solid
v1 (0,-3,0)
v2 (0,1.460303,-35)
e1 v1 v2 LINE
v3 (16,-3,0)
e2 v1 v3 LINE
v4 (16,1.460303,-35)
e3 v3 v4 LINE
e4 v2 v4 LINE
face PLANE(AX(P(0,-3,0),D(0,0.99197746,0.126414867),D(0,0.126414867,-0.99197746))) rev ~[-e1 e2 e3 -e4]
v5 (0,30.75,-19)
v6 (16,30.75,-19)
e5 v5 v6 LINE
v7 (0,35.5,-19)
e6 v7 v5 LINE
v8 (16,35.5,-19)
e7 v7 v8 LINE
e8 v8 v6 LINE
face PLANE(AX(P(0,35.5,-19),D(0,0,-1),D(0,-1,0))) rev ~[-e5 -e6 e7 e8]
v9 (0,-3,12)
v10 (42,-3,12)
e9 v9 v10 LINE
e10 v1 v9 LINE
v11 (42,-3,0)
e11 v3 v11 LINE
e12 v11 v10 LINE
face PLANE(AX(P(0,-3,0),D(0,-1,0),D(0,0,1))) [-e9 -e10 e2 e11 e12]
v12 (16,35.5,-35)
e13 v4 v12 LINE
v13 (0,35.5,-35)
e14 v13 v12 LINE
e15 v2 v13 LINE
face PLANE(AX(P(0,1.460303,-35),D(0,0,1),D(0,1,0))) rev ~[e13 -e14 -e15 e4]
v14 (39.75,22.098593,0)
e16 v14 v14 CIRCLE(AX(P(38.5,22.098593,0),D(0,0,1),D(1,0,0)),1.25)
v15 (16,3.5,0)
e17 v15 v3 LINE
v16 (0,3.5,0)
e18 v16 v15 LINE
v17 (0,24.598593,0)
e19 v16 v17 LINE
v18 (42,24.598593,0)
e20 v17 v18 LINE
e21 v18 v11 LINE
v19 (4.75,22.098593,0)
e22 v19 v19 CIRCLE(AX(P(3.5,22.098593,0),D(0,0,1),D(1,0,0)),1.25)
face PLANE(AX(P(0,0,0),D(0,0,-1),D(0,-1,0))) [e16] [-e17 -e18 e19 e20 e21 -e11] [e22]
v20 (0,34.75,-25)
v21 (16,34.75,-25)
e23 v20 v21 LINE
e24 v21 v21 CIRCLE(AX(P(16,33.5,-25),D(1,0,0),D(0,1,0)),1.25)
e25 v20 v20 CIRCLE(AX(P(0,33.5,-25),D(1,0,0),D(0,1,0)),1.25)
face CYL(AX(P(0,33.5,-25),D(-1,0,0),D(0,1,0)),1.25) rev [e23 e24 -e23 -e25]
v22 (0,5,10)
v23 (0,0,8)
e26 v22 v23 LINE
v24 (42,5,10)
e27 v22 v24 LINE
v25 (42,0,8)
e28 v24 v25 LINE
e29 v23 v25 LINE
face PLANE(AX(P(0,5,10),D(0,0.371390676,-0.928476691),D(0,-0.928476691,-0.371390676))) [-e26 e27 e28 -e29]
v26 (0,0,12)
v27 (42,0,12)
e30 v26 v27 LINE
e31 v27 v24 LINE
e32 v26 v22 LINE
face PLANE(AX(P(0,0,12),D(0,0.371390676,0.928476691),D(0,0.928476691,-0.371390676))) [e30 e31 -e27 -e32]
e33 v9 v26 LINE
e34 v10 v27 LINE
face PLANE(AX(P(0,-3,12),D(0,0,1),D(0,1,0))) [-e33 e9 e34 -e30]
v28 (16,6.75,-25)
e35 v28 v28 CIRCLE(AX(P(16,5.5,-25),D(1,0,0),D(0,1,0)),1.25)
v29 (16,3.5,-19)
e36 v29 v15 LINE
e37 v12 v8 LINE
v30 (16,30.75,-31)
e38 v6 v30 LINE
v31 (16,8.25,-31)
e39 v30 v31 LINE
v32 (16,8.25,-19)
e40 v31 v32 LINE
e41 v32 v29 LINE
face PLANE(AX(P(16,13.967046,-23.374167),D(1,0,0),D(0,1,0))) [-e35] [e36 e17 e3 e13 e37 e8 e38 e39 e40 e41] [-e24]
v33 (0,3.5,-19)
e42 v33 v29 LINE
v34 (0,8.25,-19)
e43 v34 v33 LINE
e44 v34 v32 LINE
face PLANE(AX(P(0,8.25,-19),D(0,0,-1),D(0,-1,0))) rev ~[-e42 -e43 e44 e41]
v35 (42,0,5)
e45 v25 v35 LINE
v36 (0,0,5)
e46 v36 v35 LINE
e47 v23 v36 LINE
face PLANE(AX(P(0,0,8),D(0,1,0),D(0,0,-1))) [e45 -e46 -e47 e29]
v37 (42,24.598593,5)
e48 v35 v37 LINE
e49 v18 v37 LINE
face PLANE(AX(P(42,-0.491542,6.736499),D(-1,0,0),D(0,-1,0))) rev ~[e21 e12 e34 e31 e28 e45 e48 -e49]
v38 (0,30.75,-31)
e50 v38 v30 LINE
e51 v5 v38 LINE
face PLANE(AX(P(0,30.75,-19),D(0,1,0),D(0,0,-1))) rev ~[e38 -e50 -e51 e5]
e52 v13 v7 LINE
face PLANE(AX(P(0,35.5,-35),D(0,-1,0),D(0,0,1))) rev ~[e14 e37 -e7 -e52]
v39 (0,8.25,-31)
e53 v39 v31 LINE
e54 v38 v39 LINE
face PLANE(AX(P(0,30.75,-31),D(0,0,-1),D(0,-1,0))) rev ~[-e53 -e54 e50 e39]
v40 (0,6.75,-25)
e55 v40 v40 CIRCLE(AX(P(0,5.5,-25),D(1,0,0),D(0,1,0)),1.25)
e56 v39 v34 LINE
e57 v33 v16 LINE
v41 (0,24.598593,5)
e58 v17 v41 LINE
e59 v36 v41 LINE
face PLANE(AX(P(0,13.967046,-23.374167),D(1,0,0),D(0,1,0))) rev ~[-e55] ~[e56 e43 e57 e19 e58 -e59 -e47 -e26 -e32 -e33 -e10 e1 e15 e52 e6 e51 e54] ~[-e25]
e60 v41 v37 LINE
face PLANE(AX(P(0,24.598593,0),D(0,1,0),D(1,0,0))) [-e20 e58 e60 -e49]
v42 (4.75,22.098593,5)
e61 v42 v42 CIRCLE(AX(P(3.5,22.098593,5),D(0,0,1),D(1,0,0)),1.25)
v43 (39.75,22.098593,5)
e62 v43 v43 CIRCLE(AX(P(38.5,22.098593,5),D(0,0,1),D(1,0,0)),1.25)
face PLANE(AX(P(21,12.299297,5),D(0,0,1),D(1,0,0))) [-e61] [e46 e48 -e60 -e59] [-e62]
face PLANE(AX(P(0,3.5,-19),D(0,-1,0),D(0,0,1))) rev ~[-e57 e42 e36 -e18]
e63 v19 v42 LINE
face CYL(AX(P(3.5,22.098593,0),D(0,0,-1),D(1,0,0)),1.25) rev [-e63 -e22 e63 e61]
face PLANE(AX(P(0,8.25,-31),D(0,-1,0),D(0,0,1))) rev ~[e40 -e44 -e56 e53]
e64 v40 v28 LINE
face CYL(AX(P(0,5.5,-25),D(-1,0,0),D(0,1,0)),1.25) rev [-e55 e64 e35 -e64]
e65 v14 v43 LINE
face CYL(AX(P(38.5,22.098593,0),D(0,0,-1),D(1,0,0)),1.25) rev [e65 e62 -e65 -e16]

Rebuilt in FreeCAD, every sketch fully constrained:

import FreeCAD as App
import Part
import Sketcher


def add_polygon(sketch, points):
    """Adds a closed chain of lines whose ends are joined by coincident constraints."""
    first, n = sketch.GeometryCount, len(points)
    for a, b in zip(points, points[1:] + points[:1]):
        sketch.addGeometry(Part.LineSegment(App.Vector(*a, 0), App.Vector(*b, 0)), False)
    for i in range(n):
        sketch.addConstraint(Sketcher.Constraint("Coincident", first + i, 2, first + (i + 1) % n, 1))

doc = App.newDocument("Part")
params = doc.addObject("Spreadsheet::Sheet", "Params")
for row, (alias, value) in enumerate([
    ("sketch1_diameter", "2.5 mm"),
    ("sketch1_width", "42 mm"),
    ("pad1_length", "5 mm"),
    ("sketch2_width", "3 mm"),
    ("sketch2_height", "12 mm"),
    ("sketch2_height2", "8 mm"),
    ("pad2_length", "42 mm"),
    ("sketch3_diameter", "2.5 mm"),
    ("sketch3_height", "19 mm"),
    ("sketch3_height2", "16 mm"),
    ("sketch3_height3", "12 mm"),
    ("sketch3_width", "6.5 mm"),
    ("pad3_length", "16 mm"),
], start=1):
    params.set(f"A{row}", alias)
    params.set(f"B{row}", "=" + value)
    params.setAlias(f"B{row}", alias)

body = doc.addObject("PartDesign::Body", "Body")

sketch1 = body.newObject("Sketcher::SketchObject", "Sketch")
sketch1.AttachmentSupport = (doc.getObject("XY_Plane"), [""])
sketch1.MapMode = "FlatFace"
add_polygon(sketch1, [(0, 24.6), (0, 0), (42, 0), (42, 24.6)])
sketch1.addGeometry(Part.Circle(App.Vector(3.5, 22.1, 0), App.Vector(0, 0, 1), 1.2), False)
sketch1.addGeometry(Part.Circle(App.Vector(38.5, 22.1, 0), App.Vector(0, 0, 1), 1.2), False)
sketch1.addConstraint(Sketcher.Constraint("Vertical", 0))
sketch1.addConstraint(Sketcher.Constraint("Horizontal", 1))
sketch1.addConstraint(Sketcher.Constraint("Vertical", 2))
sketch1.addConstraint(Sketcher.Constraint("Horizontal", 3))
sketch1.addConstraint(Sketcher.Constraint("Coincident", 0, 2, -1, 1))
sketch1.addConstraint(Sketcher.Constraint("Equal", 4, 5))
sketch1.addConstraint(Sketcher.Constraint("Horizontal", 4, 3, 5, 3))
sketch1.addConstraint(Sketcher.Constraint("Diameter", 4, 2.5))
sketch1.addConstraint(Sketcher.Constraint("DistanceX", 1, 1, 1, 2, 42.0))
sketch1.addConstraint(Sketcher.Constraint("DistanceX", 4, 3, 5, 3, 35.0))
sketch1.addConstraint(Sketcher.Constraint("DistanceX", -1, 1, 4, 3, 3.5))
sketch1.addConstraint(Sketcher.Constraint("DistanceY", 5, 3, 2, 2, 2.5))
sketch1.addConstraint(Sketcher.Constraint("DistanceY", 0, 2, 0, 1, 24.598593))
sketch1.setExpression("Constraints[11]", "Params.sketch1_diameter")
sketch1.setExpression("Constraints[12]", "Params.sketch1_width")
pad1 = body.newObject("PartDesign::Pad", "Pad")
pad1.Profile = sketch1
pad1.setExpression("Length", "Params.pad1_length")

sketch2 = body.newObject("Sketcher::SketchObject", "Sketch001")
sketch2.AttachmentSupport = (doc.getObject("YZ_Plane"), [""])
sketch2.MapMode = "FlatFace"
add_polygon(sketch2, [(0, 0), (-3, 0), (-3, 12), (0, 12), (5, 10), (0, 8)])
sketch2.addConstraint(Sketcher.Constraint("Horizontal", 0))
sketch2.addConstraint(Sketcher.Constraint("Vertical", 1))
sketch2.addConstraint(Sketcher.Constraint("Horizontal", 2))
sketch2.addConstraint(Sketcher.Constraint("Vertical", 5))
sketch2.addConstraint(Sketcher.Constraint("Coincident", 5, 2, -1, 1))
sketch2.addConstraint(Sketcher.Constraint("PointOnObject", 2, 2, -2))
sketch2.addConstraint(Sketcher.Constraint("Equal", 3, 4))
sketch2.addConstraint(Sketcher.Constraint("DistanceX", 0, 2, 0, 1, 3.0))
sketch2.addConstraint(Sketcher.Constraint("DistanceY", 1, 1, 1, 2, 12.0))
sketch2.addConstraint(Sketcher.Constraint("DistanceY", 5, 2, 5, 1, 8.0))
sketch2.addConstraint(Sketcher.Constraint("DistanceX", -1, 1, 3, 2, 5.0))
sketch2.setExpression("Constraints[13]", "Params.sketch2_width")
sketch2.setExpression("Constraints[14]", "Params.sketch2_height")
sketch2.setExpression("Constraints[15]", "Params.sketch2_height2")
pad2 = body.newObject("PartDesign::Pad", "Pad001")
pad2.Profile = sketch2
pad2.setExpression("Length", "Params.pad2_length")

sketch3 = body.newObject("Sketcher::SketchObject", "Sketch002")
sketch3.AttachmentSupport = (doc.getObject("YZ_Plane"), [""])
sketch3.MapMode = "FlatFace"
add_polygon(sketch3, [(3.5, -19), (3.5, 0), (-3, 0), (1.5, -35), (35.5, -35), (35.5, -19), (30.8, -19), (30.8, -31), (8.2, -31), (8.2, -19)])
sketch3.addGeometry(Part.Circle(App.Vector(5.5, -25, 0), App.Vector(0, 0, 1), 1.2), False)
sketch3.addGeometry(Part.Circle(App.Vector(33.5, -25, 0), App.Vector(0, 0, 1), 1.2), False)
sketch3.addConstraint(Sketcher.Constraint("Vertical", 0))
sketch3.addConstraint(Sketcher.Constraint("Horizontal", 1))
sketch3.addConstraint(Sketcher.Constraint("Horizontal", 3))
sketch3.addConstraint(Sketcher.Constraint("Vertical", 4))
sketch3.addConstraint(Sketcher.Constraint("Horizontal", 5))
sketch3.addConstraint(Sketcher.Constraint("Vertical", 6))
sketch3.addConstraint(Sketcher.Constraint("Horizontal", 7))
sketch3.addConstraint(Sketcher.Constraint("Vertical", 8))
sketch3.addConstraint(Sketcher.Constraint("Horizontal", 9))
sketch3.addConstraint(Sketcher.Constraint("Equal", 10, 11))
sketch3.addConstraint(Sketcher.Constraint("PointOnObject", 0, 2, -1))
sketch3.addConstraint(Sketcher.Constraint("Horizontal", 10, 3, 11, 3))
sketch3.addConstraint(Sketcher.Constraint("Horizontal", 5, 2, 8, 2))
sketch3.addConstraint(Sketcher.Constraint("Equal", 5, 9))
sketch3.addConstraint(Sketcher.Constraint("Diameter", 10, 2.5))
sketch3.addConstraint(Sketcher.Constraint("DistanceY", 0, 1, 0, 2, 19.0))
sketch3.addConstraint(Sketcher.Constraint("DistanceY", 4, 1, 4, 2, 16.0))
sketch3.addConstraint(Sketcher.Constraint("DistanceY", 6, 2, 6, 1, 12.0))
sketch3.addConstraint(Sketcher.Constraint("DistanceX", 1, 2, 1, 1, 6.5))
sketch3.addConstraint(Sketcher.Constraint("DistanceX", 7, 2, 7, 1, 22.5))
sketch3.addConstraint(Sketcher.Constraint("DistanceY", 10, 3, -1, 1, 25.0))
sketch3.addConstraint(Sketcher.Constraint("DistanceX", 1, 2, -1, 1, 3.0))
sketch3.addConstraint(Sketcher.Constraint("DistanceX", 10, 3, 11, 3, 28.0))
sketch3.addConstraint(Sketcher.Constraint("DistanceX", 0, 2, 10, 3, 2.0))
sketch3.addConstraint(Sketcher.Constraint("DistanceX", 11, 3, 3, 2, 2.0))
sketch3.addConstraint(Sketcher.Constraint("Distance", 2, 35.28306))
sketch3.setExpression("Constraints[24]", "Params.sketch3_diameter")
sketch3.setExpression("Constraints[25]", "Params.sketch3_height")
sketch3.setExpression("Constraints[26]", "Params.sketch3_height2")
sketch3.setExpression("Constraints[27]", "Params.sketch3_height3")
sketch3.setExpression("Constraints[28]", "Params.sketch3_width")
pad3 = body.newObject("PartDesign::Pad", "Pad002")
pad3.Profile = sketch3
pad3.setExpression("Length", "Params.pad3_length")

doc.recompute()
